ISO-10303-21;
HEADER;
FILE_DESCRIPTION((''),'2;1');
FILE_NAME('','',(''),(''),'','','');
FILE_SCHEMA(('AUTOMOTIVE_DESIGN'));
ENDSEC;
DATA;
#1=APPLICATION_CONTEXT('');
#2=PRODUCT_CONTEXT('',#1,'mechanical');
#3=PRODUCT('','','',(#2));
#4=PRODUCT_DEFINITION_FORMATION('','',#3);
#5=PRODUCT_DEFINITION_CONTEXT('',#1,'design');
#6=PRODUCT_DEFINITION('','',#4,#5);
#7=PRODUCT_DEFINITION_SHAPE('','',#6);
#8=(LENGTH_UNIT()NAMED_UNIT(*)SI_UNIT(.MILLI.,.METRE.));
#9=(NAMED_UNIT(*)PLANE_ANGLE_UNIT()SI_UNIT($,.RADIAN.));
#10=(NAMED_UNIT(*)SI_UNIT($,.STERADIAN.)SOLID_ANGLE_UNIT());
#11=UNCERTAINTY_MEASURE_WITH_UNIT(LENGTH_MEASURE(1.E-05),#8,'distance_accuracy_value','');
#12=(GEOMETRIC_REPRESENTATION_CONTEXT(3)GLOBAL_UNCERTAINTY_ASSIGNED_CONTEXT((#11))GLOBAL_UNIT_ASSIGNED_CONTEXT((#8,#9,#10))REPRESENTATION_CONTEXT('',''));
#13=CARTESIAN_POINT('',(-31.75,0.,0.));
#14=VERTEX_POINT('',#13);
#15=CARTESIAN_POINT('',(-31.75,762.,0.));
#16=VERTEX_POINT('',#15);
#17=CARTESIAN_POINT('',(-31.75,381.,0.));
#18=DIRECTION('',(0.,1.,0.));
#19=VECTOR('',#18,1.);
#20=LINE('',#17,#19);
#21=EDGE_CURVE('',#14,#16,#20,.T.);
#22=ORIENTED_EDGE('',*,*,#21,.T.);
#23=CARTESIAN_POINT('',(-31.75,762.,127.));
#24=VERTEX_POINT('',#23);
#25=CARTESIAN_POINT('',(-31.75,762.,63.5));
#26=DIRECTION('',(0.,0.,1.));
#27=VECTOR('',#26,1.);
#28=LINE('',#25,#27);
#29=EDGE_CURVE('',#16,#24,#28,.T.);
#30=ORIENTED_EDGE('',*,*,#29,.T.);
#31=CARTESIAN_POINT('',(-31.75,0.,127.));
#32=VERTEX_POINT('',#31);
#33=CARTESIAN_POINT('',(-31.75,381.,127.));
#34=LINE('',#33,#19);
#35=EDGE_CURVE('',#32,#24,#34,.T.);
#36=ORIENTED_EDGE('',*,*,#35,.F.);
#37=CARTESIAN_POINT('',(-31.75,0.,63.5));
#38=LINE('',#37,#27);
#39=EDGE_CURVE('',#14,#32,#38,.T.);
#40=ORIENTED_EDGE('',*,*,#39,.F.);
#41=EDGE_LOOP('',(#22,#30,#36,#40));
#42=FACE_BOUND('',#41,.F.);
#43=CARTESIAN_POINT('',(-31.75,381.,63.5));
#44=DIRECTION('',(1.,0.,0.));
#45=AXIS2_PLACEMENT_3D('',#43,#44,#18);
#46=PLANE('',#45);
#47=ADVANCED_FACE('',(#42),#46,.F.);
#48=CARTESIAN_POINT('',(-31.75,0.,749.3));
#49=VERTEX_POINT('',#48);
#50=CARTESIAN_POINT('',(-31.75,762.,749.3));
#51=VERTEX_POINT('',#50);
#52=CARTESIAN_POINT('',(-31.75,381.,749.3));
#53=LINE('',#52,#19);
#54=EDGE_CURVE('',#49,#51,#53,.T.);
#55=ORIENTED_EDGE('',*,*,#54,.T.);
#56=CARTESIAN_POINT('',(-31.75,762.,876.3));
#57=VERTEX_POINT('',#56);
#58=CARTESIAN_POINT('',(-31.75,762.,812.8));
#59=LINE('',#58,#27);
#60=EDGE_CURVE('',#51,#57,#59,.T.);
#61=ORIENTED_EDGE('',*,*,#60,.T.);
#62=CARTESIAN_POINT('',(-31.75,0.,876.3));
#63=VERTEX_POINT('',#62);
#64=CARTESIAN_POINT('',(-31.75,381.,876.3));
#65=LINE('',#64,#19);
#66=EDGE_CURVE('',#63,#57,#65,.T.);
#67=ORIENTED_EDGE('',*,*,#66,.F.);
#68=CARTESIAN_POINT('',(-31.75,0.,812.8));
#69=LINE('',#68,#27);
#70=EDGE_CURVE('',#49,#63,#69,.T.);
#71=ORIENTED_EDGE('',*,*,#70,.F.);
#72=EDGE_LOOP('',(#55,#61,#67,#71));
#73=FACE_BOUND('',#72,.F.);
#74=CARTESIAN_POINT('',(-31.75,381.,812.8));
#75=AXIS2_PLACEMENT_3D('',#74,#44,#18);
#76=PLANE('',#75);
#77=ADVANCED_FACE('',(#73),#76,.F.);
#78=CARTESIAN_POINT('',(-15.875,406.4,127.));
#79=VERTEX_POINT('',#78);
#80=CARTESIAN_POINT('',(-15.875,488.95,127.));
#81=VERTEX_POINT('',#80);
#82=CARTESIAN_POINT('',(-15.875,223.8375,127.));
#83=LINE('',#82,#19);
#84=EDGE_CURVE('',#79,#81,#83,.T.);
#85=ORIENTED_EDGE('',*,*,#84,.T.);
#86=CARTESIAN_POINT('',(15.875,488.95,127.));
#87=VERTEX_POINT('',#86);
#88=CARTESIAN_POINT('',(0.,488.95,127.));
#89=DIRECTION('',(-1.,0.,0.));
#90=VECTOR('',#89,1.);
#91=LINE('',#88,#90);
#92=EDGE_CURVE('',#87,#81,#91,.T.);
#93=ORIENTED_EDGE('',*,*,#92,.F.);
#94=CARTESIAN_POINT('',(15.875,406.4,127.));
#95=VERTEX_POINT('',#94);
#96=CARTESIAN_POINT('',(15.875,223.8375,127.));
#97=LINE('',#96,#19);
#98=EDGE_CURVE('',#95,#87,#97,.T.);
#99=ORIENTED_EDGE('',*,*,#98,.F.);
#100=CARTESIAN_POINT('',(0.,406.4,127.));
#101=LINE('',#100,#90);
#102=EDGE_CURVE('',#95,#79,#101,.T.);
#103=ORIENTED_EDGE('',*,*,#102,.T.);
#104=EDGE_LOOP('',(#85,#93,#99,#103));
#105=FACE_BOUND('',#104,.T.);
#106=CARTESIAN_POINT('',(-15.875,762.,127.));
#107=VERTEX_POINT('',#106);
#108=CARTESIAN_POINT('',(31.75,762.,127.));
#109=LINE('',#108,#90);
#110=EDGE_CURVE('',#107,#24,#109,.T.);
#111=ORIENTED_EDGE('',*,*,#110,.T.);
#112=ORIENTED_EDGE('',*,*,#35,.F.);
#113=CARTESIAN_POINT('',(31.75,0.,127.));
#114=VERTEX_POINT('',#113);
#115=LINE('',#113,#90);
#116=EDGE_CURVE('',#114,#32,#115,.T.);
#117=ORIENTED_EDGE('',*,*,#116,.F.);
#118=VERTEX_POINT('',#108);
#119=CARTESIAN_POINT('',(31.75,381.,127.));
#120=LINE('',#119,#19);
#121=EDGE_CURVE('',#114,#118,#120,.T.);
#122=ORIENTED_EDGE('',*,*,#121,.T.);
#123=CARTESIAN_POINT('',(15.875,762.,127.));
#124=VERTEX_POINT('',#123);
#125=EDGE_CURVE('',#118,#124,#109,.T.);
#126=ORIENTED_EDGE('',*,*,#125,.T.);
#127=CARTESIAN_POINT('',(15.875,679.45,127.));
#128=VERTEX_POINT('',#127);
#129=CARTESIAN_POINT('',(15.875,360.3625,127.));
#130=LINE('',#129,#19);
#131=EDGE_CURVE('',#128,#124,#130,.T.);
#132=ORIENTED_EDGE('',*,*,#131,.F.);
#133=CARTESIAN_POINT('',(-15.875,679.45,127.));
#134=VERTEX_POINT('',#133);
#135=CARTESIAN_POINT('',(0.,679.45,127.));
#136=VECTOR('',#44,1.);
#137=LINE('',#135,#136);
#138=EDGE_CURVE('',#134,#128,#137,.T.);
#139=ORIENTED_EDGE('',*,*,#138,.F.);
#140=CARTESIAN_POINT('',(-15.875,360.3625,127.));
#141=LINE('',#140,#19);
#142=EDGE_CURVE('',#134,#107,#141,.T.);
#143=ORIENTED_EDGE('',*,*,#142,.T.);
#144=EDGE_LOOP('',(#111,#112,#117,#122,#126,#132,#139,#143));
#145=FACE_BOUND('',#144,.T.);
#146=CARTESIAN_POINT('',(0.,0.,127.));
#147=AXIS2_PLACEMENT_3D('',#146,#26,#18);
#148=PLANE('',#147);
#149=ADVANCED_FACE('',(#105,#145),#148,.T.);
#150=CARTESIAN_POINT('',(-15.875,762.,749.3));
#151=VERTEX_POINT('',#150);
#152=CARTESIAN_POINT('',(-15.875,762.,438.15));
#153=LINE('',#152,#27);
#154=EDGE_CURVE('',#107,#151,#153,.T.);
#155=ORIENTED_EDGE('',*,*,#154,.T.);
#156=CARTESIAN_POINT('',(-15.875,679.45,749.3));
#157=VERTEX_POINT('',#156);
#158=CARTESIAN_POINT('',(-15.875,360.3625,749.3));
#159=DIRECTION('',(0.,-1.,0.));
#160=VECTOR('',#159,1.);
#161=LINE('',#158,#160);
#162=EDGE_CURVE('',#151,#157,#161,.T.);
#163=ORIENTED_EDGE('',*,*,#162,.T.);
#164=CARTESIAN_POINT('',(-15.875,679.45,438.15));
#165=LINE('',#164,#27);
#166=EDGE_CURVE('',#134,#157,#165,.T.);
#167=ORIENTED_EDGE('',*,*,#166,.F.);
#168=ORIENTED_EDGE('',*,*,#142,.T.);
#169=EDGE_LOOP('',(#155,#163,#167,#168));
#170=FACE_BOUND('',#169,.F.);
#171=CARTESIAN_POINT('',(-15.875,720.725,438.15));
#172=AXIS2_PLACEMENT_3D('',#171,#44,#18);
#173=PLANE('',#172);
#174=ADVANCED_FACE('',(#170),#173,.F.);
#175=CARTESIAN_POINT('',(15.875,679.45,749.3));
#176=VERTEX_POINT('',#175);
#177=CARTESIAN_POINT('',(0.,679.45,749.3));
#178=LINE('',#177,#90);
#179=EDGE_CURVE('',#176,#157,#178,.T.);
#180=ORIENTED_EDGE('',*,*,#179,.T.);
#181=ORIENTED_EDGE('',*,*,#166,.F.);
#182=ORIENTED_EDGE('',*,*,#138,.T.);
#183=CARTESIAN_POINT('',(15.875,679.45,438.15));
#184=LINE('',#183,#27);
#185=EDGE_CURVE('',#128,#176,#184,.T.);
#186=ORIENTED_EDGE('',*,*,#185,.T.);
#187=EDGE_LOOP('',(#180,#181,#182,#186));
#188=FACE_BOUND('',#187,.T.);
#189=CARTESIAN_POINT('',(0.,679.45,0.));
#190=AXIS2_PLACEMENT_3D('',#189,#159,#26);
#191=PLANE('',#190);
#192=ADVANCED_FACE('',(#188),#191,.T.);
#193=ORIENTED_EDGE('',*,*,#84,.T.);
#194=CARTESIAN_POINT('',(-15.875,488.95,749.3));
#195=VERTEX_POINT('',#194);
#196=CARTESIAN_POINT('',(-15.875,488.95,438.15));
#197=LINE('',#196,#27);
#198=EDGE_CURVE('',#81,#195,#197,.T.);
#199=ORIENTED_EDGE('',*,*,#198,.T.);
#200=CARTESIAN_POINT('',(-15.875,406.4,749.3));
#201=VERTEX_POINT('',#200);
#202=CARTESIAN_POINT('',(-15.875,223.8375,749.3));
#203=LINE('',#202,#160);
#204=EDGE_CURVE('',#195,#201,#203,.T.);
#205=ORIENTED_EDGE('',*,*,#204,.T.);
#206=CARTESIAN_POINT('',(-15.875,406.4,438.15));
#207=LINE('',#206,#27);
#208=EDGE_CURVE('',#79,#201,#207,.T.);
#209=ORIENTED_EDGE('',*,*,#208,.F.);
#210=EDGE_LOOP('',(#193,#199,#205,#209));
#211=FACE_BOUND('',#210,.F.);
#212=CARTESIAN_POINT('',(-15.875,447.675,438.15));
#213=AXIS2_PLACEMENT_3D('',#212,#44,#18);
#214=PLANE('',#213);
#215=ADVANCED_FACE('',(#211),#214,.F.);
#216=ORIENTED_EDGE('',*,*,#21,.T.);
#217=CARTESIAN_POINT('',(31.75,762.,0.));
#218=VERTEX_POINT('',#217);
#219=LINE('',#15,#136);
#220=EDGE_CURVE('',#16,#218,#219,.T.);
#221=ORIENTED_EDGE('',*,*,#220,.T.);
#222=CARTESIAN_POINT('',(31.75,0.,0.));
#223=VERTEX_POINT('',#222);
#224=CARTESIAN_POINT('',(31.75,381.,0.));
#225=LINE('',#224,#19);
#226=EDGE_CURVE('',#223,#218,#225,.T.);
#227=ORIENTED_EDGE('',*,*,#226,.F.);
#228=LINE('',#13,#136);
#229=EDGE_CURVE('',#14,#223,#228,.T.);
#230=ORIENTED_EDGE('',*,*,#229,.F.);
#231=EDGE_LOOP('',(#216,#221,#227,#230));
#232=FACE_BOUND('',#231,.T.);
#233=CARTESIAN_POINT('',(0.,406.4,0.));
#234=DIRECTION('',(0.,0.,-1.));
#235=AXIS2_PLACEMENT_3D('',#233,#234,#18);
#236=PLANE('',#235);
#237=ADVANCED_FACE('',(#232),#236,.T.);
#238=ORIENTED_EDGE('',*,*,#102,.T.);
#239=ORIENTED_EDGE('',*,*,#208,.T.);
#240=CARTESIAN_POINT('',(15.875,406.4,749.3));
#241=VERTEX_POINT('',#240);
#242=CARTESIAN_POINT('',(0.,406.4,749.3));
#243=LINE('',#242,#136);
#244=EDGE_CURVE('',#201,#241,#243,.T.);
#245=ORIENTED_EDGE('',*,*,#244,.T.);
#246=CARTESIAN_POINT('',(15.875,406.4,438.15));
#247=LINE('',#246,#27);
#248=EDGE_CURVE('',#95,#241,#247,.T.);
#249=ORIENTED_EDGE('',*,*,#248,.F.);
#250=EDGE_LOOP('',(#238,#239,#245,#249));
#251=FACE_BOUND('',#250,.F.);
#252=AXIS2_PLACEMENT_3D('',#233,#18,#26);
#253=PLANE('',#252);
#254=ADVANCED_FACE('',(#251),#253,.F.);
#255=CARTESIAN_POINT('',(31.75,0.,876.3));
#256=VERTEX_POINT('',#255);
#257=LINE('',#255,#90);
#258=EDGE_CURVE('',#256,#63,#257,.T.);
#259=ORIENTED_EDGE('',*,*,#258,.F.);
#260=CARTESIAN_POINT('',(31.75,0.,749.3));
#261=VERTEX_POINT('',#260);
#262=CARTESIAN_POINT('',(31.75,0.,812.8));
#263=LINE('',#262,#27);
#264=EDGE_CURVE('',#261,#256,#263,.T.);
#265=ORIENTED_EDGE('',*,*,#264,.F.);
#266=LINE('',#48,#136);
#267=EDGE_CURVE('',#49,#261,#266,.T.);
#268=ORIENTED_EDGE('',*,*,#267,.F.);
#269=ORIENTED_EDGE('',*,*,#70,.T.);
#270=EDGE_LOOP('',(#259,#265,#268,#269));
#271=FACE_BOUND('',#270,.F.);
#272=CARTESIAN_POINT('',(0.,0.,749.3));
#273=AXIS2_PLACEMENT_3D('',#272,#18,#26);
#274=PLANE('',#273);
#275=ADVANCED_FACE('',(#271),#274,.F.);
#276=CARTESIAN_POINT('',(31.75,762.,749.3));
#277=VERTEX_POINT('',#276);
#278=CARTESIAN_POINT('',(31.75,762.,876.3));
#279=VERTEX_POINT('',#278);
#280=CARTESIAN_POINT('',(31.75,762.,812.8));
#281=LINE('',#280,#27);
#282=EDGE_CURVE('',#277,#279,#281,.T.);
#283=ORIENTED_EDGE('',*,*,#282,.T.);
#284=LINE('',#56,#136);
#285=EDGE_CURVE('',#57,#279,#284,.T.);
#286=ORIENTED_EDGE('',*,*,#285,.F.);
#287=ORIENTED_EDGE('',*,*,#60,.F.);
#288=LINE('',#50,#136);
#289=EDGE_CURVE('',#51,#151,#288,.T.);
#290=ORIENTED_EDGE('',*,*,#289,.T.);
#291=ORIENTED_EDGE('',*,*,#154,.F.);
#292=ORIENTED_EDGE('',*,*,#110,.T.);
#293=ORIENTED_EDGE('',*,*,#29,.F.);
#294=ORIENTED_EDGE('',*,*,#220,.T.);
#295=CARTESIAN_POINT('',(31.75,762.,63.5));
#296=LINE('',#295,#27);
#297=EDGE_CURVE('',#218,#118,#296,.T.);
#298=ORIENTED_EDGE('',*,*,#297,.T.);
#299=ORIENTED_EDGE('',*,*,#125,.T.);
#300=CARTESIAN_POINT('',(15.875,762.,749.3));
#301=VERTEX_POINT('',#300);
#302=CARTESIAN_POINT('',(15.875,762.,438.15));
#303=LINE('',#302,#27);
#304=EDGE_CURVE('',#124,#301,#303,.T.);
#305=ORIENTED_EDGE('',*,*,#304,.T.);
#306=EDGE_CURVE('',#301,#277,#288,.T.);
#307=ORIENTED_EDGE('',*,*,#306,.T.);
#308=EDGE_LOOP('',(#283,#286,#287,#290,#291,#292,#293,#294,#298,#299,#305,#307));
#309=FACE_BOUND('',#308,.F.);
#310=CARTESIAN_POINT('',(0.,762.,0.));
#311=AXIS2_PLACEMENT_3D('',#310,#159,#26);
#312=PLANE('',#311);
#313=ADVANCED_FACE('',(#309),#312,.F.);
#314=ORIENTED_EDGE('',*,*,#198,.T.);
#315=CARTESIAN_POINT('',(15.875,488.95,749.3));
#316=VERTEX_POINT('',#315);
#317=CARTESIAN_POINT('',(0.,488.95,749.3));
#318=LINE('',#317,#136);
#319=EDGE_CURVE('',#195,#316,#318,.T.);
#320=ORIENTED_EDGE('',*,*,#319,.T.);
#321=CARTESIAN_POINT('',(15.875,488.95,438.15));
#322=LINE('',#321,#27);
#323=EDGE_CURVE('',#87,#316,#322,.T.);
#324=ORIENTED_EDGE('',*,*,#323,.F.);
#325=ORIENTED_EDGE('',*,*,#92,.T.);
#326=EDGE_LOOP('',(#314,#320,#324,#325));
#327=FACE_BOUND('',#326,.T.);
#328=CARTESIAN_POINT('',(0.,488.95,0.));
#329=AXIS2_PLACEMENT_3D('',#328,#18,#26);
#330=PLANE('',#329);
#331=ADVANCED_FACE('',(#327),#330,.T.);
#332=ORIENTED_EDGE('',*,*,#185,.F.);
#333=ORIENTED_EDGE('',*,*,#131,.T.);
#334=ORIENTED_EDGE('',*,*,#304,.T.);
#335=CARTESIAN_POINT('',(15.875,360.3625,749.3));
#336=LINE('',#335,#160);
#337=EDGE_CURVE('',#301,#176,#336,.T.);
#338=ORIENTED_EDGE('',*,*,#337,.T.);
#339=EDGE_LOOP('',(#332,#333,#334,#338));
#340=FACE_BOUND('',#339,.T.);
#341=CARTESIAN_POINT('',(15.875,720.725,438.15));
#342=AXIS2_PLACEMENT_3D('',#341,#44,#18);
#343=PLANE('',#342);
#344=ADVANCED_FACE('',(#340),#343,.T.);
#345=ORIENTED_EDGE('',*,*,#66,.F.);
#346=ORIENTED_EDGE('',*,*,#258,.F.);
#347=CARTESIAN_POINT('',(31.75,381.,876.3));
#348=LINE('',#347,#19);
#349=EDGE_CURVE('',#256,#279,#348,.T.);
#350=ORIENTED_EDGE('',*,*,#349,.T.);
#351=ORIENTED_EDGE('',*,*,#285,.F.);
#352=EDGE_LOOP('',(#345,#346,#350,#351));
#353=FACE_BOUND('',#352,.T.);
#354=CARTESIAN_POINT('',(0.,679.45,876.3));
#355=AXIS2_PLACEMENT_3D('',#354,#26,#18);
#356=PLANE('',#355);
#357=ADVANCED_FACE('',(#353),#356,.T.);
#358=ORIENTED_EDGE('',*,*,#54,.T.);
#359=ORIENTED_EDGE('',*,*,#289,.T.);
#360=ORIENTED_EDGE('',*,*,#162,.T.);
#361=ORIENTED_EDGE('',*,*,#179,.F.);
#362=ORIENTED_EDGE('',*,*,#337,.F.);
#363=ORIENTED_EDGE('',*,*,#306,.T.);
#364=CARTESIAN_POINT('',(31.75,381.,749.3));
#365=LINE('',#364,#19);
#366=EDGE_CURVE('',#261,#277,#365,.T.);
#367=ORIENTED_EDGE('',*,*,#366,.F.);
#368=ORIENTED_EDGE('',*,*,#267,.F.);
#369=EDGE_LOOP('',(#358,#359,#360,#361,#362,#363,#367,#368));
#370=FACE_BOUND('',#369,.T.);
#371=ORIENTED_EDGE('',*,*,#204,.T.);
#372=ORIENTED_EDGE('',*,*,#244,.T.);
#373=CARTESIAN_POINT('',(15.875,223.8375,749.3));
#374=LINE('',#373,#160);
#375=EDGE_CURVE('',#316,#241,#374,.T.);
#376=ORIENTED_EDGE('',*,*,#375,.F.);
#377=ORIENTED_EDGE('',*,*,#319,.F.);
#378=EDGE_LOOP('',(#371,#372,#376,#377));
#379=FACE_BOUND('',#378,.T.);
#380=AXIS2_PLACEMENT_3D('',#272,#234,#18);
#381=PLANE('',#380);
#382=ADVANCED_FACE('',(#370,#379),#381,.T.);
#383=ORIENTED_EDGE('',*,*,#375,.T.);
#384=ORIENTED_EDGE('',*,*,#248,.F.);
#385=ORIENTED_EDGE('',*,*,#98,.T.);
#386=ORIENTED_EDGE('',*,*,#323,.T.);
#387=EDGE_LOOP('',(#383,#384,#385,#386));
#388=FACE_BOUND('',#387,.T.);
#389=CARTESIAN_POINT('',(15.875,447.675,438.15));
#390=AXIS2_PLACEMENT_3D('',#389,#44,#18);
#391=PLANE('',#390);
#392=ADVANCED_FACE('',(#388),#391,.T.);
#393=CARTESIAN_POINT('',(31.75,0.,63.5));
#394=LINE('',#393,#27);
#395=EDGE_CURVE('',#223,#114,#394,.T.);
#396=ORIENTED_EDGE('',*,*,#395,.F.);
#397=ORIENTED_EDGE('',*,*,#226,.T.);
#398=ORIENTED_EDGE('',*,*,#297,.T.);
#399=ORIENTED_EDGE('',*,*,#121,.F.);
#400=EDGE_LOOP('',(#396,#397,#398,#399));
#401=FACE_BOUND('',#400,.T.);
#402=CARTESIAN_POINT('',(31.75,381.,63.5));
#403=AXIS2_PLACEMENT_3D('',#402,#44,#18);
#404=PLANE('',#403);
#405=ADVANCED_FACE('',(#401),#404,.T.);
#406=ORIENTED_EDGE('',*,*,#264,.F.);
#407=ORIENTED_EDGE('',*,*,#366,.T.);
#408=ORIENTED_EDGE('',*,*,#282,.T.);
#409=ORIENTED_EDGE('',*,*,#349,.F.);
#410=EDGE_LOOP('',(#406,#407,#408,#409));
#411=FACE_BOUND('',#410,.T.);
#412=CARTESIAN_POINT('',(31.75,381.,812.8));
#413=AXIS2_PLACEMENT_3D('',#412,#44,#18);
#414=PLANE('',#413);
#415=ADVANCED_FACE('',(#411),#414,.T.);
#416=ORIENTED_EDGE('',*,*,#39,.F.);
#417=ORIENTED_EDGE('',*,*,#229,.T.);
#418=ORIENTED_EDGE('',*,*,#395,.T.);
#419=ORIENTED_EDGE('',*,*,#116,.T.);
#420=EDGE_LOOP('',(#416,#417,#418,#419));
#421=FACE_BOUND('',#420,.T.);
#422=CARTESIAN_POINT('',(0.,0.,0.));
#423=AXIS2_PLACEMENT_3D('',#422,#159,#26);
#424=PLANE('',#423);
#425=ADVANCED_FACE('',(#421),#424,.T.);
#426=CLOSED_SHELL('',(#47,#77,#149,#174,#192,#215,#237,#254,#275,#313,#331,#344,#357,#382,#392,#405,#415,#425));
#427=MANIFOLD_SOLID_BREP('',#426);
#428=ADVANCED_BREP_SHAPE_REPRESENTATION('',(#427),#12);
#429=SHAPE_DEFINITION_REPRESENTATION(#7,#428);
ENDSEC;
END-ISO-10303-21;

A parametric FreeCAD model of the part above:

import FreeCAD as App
import Part
import Sketcher
Q = App.Units.Quantity


def add_polygon(sketch, points):
    """Adds a closed chain of lines whose ends are joined by coincident constraints."""
    first, n = sketch.GeometryCount, len(points)
    for a, b in zip(points, points[1:] + points[:1]):
        sketch.addGeometry(Part.LineSegment(App.Vector(*a, 0), App.Vector(*b, 0)), False)
    for i in range(n):
        sketch.addConstraint(Sketcher.Constraint("Coincident", first + i, 2, first + (i + 1) % n, 1))

doc = App.newDocument("Part")
body = doc.addObject("PartDesign::Body", "Body")
body.AllowCompound = True

# Sketch on YZ plane
sketch1 = body.newObject("Sketcher::SketchObject", "Sketch")
sketch1.AttachmentSupport = (doc.getObject("YZ_Plane"), [""])
sketch1.MapMode = "FlatFace"
add_polygon(sketch1, [(0, 127), (0, 0), (762, 0), (762, 127)])  # lines 0-3
add_polygon(sketch1, [(0, 876), (0, 749), (762, 749), (762, 876)])  # lines 4-7
sketch1.addConstraint(Sketcher.Constraint("Vertical", 0))
sketch1.addConstraint(Sketcher.Constraint("Horizontal", 1))
sketch1.addConstraint(Sketcher.Constraint("Vertical", 2))
sketch1.addConstraint(Sketcher.Constraint("Horizontal", 3))
sketch1.addConstraint(Sketcher.Constraint("Vertical", 4))
sketch1.addConstraint(Sketcher.Constraint("Horizontal", 5))
sketch1.addConstraint(Sketcher.Constraint("Vertical", 6))
sketch1.addConstraint(Sketcher.Constraint("Horizontal", 7))
sketch1.addConstraint(Sketcher.Constraint("Coincident", 0, 2, -1, 1))
sketch1.addConstraint(Sketcher.Constraint("PointOnObject", 4, 2, -2))
sketch1.addConstraint(Sketcher.Constraint("Vertical", 2, 2, 5, 2))
sketch1.addConstraint(Sketcher.Constraint("Equal", 2, 4))
sketch1.addConstraint(Sketcher.Constraint("DistanceX", 1, 1, 1, 2, Q("30 in")))
sketch1.addConstraint(Sketcher.Constraint("DistanceY", 0, 2, 0, 1, Q("5 in")))
sketch1.addConstraint(Sketcher.Constraint("DistanceY", -1, 1, 4, 2, Q("29.5 in")))
pad1 = body.newObject("PartDesign::Pad", "Pad")
pad1.Profile = sketch1
pad1.Length = Q("2.5 in")
pad1.Midplane = True

# Sketch on YZ plane
sketch2 = body.newObject("Sketcher::SketchObject", "Sketch001")
sketch2.AttachmentSupport = (doc.getObject("YZ_Plane"), [""])
sketch2.MapMode = "FlatFace"
add_polygon(sketch2, [(679, 876), (679, 0), (762, 0), (762, 876)])  # lines 0-3
add_polygon(sketch2, [(406, 876), (406, 0), (489, 0), (489, 876)])  # lines 4-7
sketch2.addConstraint(Sketcher.Constraint("Vertical", 0))
sketch2.addConstraint(Sketcher.Constraint("Horizontal", 1))
sketch2.addConstraint(Sketcher.Constraint("Vertical", 2))
sketch2.addConstraint(Sketcher.Constraint("Horizontal", 3))
sketch2.addConstraint(Sketcher.Constraint("Vertical", 4))
sketch2.addConstraint(Sketcher.Constraint("Horizontal", 5))
sketch2.addConstraint(Sketcher.Constraint("Vertical", 6))
sketch2.addConstraint(Sketcher.Constraint("Horizontal", 7))
sketch2.addConstraint(Sketcher.Constraint("PointOnObject", 0, 2, -1))
sketch2.addConstraint(Sketcher.Constraint("PointOnObject", 4, 2, -1))
sketch2.addConstraint(Sketcher.Constraint("Horizontal", 3, 2, 6, 2))
sketch2.addConstraint(Sketcher.Constraint("Equal", 3, 5))
sketch2.addConstraint(Sketcher.Constraint("DistanceY", 0, 2, 0, 1, Q("34.5 in")))
sketch2.addConstraint(Sketcher.Constraint("DistanceX", -1, 1, 1, 2, Q("30 in")))
sketch2.addConstraint(Sketcher.Constraint("DistanceX", -1, 1, 4, 2, Q("16 in")))
sketch2.addConstraint(Sketcher.Constraint("DistanceX", 1, 1, 1, 2, Q("3.25 in")))
pad2 = body.newObject("PartDesign::Pad", "Pad001")
pad2.Profile = sketch2
pad2.Length = Q("1.25 in")
pad2.Midplane = True

doc.recompute()
